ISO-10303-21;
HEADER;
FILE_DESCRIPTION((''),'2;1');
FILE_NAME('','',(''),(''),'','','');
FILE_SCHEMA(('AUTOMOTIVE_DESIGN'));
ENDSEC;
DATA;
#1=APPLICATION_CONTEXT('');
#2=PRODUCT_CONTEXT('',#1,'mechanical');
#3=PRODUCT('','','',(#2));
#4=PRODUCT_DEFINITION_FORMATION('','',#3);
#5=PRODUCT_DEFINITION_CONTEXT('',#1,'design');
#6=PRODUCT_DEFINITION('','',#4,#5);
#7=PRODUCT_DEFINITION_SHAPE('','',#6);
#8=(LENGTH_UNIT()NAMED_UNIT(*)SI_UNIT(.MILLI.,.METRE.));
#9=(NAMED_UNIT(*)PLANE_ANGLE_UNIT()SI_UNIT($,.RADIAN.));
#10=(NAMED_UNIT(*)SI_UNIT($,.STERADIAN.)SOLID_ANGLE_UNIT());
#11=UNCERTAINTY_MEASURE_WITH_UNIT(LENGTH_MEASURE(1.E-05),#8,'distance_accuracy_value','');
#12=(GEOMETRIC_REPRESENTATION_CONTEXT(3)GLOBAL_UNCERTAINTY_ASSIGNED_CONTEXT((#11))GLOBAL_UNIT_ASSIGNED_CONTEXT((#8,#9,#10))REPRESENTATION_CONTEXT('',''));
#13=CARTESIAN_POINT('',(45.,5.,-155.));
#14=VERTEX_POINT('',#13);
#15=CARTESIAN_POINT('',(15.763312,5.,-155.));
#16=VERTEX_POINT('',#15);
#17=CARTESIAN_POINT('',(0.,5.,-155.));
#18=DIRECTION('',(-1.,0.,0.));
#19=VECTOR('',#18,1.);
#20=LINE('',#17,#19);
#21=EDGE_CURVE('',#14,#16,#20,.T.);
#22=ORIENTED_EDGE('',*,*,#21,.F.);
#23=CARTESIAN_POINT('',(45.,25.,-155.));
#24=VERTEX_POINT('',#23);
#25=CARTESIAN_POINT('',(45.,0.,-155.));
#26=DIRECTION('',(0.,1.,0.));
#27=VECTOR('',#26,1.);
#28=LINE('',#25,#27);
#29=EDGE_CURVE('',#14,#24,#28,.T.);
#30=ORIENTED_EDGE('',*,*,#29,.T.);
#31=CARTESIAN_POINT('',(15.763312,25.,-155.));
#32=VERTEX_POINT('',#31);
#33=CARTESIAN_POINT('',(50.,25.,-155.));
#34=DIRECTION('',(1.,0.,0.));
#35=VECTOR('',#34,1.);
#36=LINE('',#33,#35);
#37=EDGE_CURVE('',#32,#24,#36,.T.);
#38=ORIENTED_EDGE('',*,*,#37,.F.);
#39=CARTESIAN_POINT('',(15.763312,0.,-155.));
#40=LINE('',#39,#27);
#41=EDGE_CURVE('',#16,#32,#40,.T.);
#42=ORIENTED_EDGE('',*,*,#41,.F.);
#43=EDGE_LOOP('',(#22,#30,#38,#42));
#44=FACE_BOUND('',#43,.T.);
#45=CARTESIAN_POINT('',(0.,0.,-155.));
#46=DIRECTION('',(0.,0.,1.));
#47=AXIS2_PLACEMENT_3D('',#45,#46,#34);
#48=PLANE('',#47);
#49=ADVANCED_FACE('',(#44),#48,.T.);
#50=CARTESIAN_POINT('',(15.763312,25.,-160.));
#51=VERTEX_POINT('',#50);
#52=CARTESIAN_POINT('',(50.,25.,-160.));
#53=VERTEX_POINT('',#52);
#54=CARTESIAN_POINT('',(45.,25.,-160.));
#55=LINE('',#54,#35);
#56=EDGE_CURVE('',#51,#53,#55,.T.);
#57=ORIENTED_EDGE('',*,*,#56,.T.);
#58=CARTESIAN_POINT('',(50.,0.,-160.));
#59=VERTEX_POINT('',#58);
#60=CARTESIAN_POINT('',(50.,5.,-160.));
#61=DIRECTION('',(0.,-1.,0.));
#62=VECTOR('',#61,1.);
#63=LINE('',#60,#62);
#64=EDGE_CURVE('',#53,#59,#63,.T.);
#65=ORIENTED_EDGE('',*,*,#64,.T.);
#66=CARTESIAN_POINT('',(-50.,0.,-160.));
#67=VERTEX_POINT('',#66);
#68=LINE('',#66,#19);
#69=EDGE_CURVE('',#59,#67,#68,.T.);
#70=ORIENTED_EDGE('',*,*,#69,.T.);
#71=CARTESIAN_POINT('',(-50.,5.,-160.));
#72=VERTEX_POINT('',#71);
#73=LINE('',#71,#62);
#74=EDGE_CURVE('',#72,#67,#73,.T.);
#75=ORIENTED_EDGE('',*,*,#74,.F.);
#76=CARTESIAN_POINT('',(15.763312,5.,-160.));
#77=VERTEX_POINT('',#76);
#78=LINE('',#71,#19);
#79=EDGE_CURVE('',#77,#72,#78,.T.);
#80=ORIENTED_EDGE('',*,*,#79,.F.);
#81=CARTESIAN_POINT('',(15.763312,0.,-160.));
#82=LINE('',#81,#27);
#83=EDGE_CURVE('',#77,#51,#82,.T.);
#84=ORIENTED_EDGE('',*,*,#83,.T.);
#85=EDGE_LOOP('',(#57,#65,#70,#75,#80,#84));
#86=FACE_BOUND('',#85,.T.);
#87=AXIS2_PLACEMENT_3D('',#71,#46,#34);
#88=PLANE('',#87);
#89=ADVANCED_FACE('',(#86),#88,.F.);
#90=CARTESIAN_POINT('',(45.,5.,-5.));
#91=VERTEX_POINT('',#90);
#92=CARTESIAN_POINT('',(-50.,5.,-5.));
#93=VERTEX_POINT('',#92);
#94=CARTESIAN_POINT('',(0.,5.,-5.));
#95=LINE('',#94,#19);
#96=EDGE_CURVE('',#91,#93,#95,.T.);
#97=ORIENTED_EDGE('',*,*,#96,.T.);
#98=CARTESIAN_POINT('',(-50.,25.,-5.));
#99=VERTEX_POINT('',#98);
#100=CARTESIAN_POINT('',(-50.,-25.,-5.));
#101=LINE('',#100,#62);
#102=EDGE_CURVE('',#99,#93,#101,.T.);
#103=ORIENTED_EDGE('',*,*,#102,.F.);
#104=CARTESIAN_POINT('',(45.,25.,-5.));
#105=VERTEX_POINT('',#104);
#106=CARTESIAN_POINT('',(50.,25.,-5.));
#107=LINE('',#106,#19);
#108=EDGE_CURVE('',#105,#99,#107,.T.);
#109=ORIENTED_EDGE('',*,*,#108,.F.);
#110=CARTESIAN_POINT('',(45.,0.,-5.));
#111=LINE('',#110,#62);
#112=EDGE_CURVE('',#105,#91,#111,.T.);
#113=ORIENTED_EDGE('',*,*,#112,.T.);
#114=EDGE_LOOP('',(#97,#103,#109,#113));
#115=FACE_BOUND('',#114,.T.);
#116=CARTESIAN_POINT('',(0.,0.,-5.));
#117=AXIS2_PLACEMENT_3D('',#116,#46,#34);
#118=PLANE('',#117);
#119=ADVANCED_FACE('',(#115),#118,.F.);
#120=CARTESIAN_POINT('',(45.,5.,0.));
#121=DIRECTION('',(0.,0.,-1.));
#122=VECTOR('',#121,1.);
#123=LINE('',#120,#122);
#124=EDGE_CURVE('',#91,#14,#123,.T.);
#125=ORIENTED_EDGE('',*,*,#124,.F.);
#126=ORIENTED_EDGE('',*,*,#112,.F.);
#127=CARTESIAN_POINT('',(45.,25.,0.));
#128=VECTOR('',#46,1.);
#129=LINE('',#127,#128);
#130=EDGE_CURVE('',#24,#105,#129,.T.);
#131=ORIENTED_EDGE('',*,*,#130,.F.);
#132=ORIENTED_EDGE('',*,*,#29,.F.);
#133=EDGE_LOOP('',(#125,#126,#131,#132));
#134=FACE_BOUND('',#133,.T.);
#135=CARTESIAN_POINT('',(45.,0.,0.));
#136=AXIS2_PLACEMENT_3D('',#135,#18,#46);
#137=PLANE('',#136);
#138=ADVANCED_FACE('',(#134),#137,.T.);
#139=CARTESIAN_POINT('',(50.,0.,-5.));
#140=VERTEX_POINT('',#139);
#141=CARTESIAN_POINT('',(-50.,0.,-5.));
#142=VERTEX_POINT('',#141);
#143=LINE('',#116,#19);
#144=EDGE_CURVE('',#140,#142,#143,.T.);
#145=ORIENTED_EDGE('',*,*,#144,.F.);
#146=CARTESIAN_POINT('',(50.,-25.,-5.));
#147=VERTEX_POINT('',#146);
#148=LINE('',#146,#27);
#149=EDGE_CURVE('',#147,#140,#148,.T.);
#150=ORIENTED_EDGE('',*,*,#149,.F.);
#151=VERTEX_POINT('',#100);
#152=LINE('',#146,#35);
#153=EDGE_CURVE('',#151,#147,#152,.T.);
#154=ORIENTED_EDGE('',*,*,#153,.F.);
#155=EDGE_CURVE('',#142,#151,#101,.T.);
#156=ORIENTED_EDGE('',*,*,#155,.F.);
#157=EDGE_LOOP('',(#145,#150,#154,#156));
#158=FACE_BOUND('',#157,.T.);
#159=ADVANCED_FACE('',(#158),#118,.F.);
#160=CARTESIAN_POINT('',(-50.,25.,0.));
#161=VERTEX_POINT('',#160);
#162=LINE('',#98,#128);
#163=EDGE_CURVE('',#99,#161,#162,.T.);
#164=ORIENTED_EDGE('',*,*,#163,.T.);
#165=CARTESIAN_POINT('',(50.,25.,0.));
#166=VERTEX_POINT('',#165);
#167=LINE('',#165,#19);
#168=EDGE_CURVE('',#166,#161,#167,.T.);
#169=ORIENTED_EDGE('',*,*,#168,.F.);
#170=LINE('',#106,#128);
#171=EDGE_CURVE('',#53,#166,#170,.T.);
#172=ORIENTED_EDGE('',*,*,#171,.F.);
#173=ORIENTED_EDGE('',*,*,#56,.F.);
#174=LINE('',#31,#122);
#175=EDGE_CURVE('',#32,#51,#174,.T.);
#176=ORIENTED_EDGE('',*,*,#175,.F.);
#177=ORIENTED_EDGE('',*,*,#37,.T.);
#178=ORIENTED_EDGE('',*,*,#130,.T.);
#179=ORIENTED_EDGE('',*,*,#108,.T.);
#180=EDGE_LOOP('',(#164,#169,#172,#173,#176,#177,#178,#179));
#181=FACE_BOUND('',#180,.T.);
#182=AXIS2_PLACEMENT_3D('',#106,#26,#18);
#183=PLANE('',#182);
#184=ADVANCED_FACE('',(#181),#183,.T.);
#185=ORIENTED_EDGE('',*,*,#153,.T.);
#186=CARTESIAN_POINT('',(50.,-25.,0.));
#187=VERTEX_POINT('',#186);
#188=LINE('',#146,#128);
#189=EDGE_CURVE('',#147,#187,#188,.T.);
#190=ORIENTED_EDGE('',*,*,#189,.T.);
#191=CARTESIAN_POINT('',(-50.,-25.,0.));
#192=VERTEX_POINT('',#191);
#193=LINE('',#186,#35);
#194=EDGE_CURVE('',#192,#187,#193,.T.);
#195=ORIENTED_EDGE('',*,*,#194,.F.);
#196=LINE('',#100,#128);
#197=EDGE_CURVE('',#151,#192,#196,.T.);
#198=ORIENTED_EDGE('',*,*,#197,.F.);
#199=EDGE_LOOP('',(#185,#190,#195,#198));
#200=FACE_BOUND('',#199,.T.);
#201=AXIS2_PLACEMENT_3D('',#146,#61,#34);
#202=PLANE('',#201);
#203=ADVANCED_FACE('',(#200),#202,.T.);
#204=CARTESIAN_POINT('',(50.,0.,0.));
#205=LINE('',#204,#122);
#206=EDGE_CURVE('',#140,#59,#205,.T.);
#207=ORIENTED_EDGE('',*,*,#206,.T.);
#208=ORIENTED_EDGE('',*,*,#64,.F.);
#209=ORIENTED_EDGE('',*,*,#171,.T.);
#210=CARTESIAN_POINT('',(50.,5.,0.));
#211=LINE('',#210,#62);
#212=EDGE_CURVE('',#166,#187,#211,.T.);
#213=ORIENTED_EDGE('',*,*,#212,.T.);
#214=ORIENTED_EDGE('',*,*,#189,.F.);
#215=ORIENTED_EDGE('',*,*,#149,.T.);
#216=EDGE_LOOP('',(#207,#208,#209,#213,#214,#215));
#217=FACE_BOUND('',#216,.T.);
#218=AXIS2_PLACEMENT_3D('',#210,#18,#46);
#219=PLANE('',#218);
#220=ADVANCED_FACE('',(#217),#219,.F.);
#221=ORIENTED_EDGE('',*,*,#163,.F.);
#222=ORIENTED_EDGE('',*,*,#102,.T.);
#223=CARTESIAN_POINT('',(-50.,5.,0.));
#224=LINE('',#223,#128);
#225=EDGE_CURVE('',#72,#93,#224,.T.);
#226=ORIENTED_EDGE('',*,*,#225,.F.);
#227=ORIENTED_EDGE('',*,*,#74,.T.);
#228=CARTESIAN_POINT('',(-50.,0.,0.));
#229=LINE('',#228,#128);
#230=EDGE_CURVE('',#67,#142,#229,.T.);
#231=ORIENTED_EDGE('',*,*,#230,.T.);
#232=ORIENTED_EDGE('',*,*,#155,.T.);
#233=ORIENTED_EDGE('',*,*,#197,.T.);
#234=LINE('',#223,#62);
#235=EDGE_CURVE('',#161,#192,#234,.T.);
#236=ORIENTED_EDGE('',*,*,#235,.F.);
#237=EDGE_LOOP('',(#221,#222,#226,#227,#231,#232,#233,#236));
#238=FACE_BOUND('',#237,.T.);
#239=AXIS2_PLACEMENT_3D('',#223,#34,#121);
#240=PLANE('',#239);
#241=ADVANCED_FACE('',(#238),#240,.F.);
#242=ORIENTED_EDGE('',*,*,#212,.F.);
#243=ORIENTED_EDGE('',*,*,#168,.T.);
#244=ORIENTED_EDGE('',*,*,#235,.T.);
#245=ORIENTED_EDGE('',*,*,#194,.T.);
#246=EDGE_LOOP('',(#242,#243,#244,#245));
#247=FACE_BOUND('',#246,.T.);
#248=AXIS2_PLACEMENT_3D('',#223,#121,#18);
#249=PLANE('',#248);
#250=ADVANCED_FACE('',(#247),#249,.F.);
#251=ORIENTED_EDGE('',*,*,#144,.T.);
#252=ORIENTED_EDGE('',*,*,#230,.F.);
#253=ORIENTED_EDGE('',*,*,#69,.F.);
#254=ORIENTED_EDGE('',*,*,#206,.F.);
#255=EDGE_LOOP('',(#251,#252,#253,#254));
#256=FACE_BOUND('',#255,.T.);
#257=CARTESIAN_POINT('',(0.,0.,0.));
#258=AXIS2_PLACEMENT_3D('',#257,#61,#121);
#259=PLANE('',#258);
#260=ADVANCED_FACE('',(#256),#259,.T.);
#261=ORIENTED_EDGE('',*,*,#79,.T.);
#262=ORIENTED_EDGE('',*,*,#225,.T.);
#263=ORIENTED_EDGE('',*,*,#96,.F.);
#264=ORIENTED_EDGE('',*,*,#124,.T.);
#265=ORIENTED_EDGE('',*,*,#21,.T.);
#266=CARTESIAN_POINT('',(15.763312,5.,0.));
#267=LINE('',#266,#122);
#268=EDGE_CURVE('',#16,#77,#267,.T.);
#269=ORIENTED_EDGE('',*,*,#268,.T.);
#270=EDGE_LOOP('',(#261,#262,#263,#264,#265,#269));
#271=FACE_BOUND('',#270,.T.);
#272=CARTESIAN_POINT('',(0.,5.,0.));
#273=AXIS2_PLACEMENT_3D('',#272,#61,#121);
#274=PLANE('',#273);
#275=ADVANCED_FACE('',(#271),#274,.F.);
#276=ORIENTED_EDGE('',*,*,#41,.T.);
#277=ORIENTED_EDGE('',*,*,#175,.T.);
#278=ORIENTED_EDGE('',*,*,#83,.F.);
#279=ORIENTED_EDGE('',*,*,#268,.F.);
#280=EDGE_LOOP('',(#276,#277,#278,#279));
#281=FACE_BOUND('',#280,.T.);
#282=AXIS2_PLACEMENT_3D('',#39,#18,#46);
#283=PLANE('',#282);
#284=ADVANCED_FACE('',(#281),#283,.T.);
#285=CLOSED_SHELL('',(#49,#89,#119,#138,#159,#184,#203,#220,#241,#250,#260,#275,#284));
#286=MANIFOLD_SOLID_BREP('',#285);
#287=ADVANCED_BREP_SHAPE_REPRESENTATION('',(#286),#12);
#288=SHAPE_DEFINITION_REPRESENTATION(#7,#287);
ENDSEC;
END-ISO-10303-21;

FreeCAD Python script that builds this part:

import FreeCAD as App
import Part
import Sketcher
from FreeCAD import Vector
Q = App.Units.Quantity

doc = App.newDocument("Part")
body = doc.addObject("PartDesign::Body", "Body")

# Sketch on XZ plane
sketch1 = doc.addObject("Sketcher::SketchObject", "Sketch")
body.addObject(sketch1)
sketch1.AttachmentSupport = (doc.XZ_Plane, [""])
sketch1.MapMode = "FlatFace"
sketch1.addGeometry([
    Part.LineSegment(Vector(-50, -160, 0), Vector(-50, 0, 0)),
    Part.LineSegment(Vector(-50, 0, 0), Vector(50, 0, 0)),
    Part.LineSegment(Vector(50, 0, 0), Vector(50, -160, 0)),
    Part.LineSegment(Vector(50, -160, 0), Vector(-50, -160, 0)),
], False)
sketch1.addConstraint([
    Sketcher.Constraint("Coincident", 0, 2, 1, 1),
    Sketcher.Constraint("Coincident", 1, 2, 2, 1),
    Sketcher.Constraint("Coincident", 2, 2, 3, 1),
    Sketcher.Constraint("Coincident", 3, 2, 0, 1),
    Sketcher.Constraint("Vertical", 0),
    Sketcher.Constraint("Horizontal", 1),
    Sketcher.Constraint("Vertical", 2),
    Sketcher.Constraint("Horizontal", 3),
    Sketcher.Constraint("Symmetric", 0, 2, 1, 2, -1, 1),
    Sketcher.Constraint("DistanceX", 1, 1, 1, 2, Q("100 mm")),
    Sketcher.Constraint("DistanceY", 0, 1, 0, 2, Q("160 mm")),
])
pad1 = doc.addObject("PartDesign::Pad", "Pad")
body.addObject(pad1)
pad1.Profile = sketch1
pad1.Length = 5
pad1.Reversed = True

# Sketch on XY plane
sketch2 = doc.addObject("Sketcher::SketchObject", "Sketch001")
body.addObject(sketch2)
sketch2.AttachmentSupport = (doc.XY_Plane, [""])
sketch2.MapMode = "FlatFace"
sketch2.addGeometry([
    Part.LineSegment(Vector(-50, 25, 0), Vector(-50, -25, 0)),
    Part.LineSegment(Vector(-50, -25, 0), Vector(50, -25, 0)),
    Part.LineSegment(Vector(50, -25, 0), Vector(50, 25, 0)),
    Part.LineSegment(Vector(50, 25, 0), Vector(-50, 25, 0)),
], False)
sketch2.addConstraint([
    Sketcher.Constraint("Coincident", 0, 2, 1, 1),
    Sketcher.Constraint("Coincident", 1, 2, 2, 1),
    Sketcher.Constraint("Coincident", 2, 2, 3, 1),
    Sketcher.Constraint("Coincident", 3, 2, 0, 1),
    Sketcher.Constraint("Vertical", 0),
    Sketcher.Constraint("Horizontal", 1),
    Sketcher.Constraint("Vertical", 2),
    Sketcher.Constraint("Horizontal", 3),
    Sketcher.Constraint("Symmetric", 0, 2, 2, 2, -1, 1),
    Sketcher.Constraint("DistanceX", 1, 1, 1, 2, Q("100 mm")),
    Sketcher.Constraint("DistanceY", 0, 2, 0, 1, Q("50 mm")),
])
pad2 = doc.addObject("PartDesign::Pad", "Pad001")
body.addObject(pad2)
pad2.Profile = sketch2
pad2.Length = 5
pad2.Reversed = True

# Sketch on YZ plane
sketch3 = doc.addObject("Sketcher::SketchObject", "Sketch002")
body.addObject(sketch3)
sketch3.AttachmentSupport = (doc.YZ_Plane, [""])
sketch3.MapMode = "FlatFace"
sketch3.AttachmentOffset = App.Placement(Vector(0, 0, 50), App.Rotation())
sketch3.addGeometry([
    Part.LineSegment(Vector(25, 0, 0), Vector(0, 0, 0)),
    Part.LineSegment(Vector(0, 0, 0), Vector(0, -160, 0)),
    Part.LineSegment(Vector(0, -160, 0), Vector(25, -160, 0)),
    Part.LineSegment(Vector(25, -160, 0), Vector(25, 0, 0)),
], False)
sketch3.addConstraint([
    Sketcher.Constraint("Coincident", 0, 2, 1, 1),
    Sketcher.Constraint("Coincident", 1, 2, 2, 1),
    Sketcher.Constraint("Coincident", 2, 2, 3, 1),
    Sketcher.Constraint("Coincident", 3, 2, 0, 1),
    Sketcher.Constraint("Horizontal", 0),
    Sketcher.Constraint("Vertical", 1),
    Sketcher.Constraint("Horizontal", 2),
    Sketcher.Constraint("Vertical", 3),
    Sketcher.Constraint("Coincident", 0, 2, -1, 1),
    Sketcher.Constraint("DistanceX", 0, 2, 0, 1, Q("25 mm")),
    Sketcher.Constraint("DistanceY", 1, 2, 1, 1, Q("160 mm")),
])
pad3 = doc.addObject("PartDesign::Pad", "Pad002")
body.addObject(pad3)
pad3.Profile = sketch3
pad3.Length = 5
pad3.Reversed = True

# Sketch on XY plane
sketch4 = doc.addObject("Sketcher::SketchObject", "Sketch003")
body.addObject(sketch4)
sketch4.AttachmentSupport = (doc.XY_Plane, [""])
sketch4.MapMode = "FlatFace"
sketch4.AttachmentOffset = App.Placement(Vector(0, 0, -160), App.Rotation())
sketch4.addGeometry([
    Part.LineSegment(Vector(50, 25, 0), Vector(50, 0, 0)),
    Part.LineSegment(Vector(50, 0, 0), Vector(16, 0, 0)),
    Part.LineSegment(Vector(16, 0, 0), Vector(16, 25, 0)),
    Part.LineSegment(Vector(16, 25, 0), Vector(50, 25, 0)),
], False)
sketch4.addConstraint([
    Sketcher.Constraint("Coincident", 0, 2, 1, 1),
    Sketcher.Constraint("Coincident", 1, 2, 2, 1),
    Sketcher.Constraint("Coincident", 2, 2, 3, 1),
    Sketcher.Constraint("Coincident", 3, 2, 0, 1),
    Sketcher.Constraint("Vertical", 0),
    Sketcher.Constraint("Horizontal", 1),
    Sketcher.Constraint("Vertical", 2),
    Sketcher.Constraint("Horizontal", 3),
    Sketcher.Constraint("PointOnObject", 0, 2, -1),
    Sketcher.Constraint("DistanceY", 0, 2, 0, 1, Q("25 mm")),
    Sketcher.Constraint("DistanceX", -1, 1, 0, 2, Q("50 mm")),
    Sketcher.Constraint("DistanceX", 1, 2, 1, 1, Q("34.236688 mm")),
])
pad4 = doc.addObject("PartDesign::Pad", "Pad003")
body.addObject(pad4)
pad4.Profile = sketch4
pad4.Length = 5

doc.recompute()
